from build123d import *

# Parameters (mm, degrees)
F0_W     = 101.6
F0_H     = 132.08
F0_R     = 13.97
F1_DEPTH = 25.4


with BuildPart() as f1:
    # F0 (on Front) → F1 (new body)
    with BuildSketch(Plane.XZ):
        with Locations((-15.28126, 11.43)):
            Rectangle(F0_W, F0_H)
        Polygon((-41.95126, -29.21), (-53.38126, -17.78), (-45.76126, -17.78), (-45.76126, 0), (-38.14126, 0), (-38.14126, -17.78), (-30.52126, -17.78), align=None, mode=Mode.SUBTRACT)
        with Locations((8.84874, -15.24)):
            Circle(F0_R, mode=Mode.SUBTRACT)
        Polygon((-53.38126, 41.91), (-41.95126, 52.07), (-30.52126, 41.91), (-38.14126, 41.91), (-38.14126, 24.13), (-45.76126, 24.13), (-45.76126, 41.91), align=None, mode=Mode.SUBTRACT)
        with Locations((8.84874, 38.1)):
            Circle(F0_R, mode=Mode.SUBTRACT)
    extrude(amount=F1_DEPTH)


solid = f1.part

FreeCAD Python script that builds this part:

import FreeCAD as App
import Part
import Sketcher

V = App.Vector
Q = App.Units.Quantity


def add_polygon(sketch, points):
    """Adds a closed chain of lines whose ends are joined by coincident constraints."""
    first, n = sketch.GeometryCount, len(points)
    for a, b in zip(points, points[1:] + points[:1]):
        sketch.addGeometry(Part.LineSegment(App.Vector(*a, 0), App.Vector(*b, 0)), False)
    for i in range(n):
        sketch.addConstraint(Sketcher.Constraint("Coincident", first + i, 2, first + (i + 1) % n, 1))

doc = App.newDocument("Part")
body = doc.addObject("PartDesign::Body", "Body")

# Sketch on XZ plane
sketch1 = doc.addObject("Sketcher::SketchObject", "Sketch")
body.addObject(sketch1)
sketch1.AttachmentSupport = (doc.XZ_Plane, [""])
sketch1.MapMode = "FlatFace"
add_polygon(sketch1, [(-66, 77), (-66, -55), (36, -55), (36, 77)])  # lines 0-3
add_polygon(sketch1, [(-31, -18), (-42, -29), (-53, -18), (-46, -18), (-46, 0), (-38, 0), (-38, -18)])  # lines 4-10
sketch1.addGeometry(Part.Circle(V(9, -15, 0), V(0, 0, 1), 14), False)  # 11
add_polygon(sketch1, [(-46, 42), (-53, 42), (-42, 52), (-31, 42), (-38, 42), (-38, 24), (-46, 24)])  # lines 12-18
sketch1.addGeometry(Part.Circle(V(9, 38, 0), V(0, 0, 1), 14), False)  # 19
sketch1.addConstraint(Sketcher.Constraint("Vertical", 0))
sketch1.addConstraint(Sketcher.Constraint("Horizontal", 1))
sketch1.addConstraint(Sketcher.Constraint("Vertical", 2))
sketch1.addConstraint(Sketcher.Constraint("Horizontal", 3))
sketch1.addConstraint(Sketcher.Constraint("Horizontal", 6))
sketch1.addConstraint(Sketcher.Constraint("Vertical", 7))
sketch1.addConstraint(Sketcher.Constraint("Horizontal", 8))
sketch1.addConstraint(Sketcher.Constraint("Vertical", 9))
sketch1.addConstraint(Sketcher.Constraint("Horizontal", 10))
sketch1.addConstraint(Sketcher.Constraint("Horizontal", 12))
sketch1.addConstraint(Sketcher.Constraint("Horizontal", 15))
sketch1.addConstraint(Sketcher.Constraint("Vertical", 16))
sketch1.addConstraint(Sketcher.Constraint("Horizontal", 17))
sketch1.addConstraint(Sketcher.Constraint("Vertical", 18))
sketch1.addConstraint(Sketcher.Constraint("Equal", 11, 19))
sketch1.addConstraint(Sketcher.Constraint("PointOnObject", 7, 2, -1))
sketch1.addConstraint(Sketcher.Constraint("Perpendicular", 4, 5))
sketch1.addConstraint(Sketcher.Constraint("Horizontal", 6, 2, 9, 2))
sketch1.addConstraint(Sketcher.Constraint("Horizontal", 12, 2, 14, 2))
sketch1.addConstraint(Sketcher.Constraint("Vertical", 11, 3, 19, 3))
sketch1.addConstraint(Sketcher.Constraint("Vertical", 5, 2, 12, 2))
sketch1.addConstraint(Sketcher.Constraint("Vertical", 4, 2, 13, 2))
sketch1.addConstraint(Sketcher.Constraint("Vertical", 10, 2, 14, 2))
sketch1.addConstraint(Sketcher.Constraint("Vertical", 9, 2, 15, 2))
sketch1.addConstraint(Sketcher.Constraint("Vertical", 7, 2, 17, 2))
sketch1.addConstraint(Sketcher.Constraint("Equal", 6, 8))
sketch1.addConstraint(Sketcher.Constraint("Equal", 8, 10))
sketch1.addConstraint(Sketcher.Constraint("Equal", 9, 16))
sketch1.addConstraint(Sketcher.Constraint("Equal", 4, 5))
sketch1.addConstraint(Sketcher.Constraint("Diameter", 11, Q("1.1 in")))
sketch1.addConstraint(Sketcher.Constraint("DistanceX", 1, 1, 1, 2, Q("4 in")))
sketch1.addConstraint(Sketcher.Constraint("DistanceX", 6, 1, 6, 2, Q("0.3 in")))
sketch1.addConstraint(Sketcher.Constraint("DistanceY", 0, 2, 0, 1, Q("5.2 in")))
sketch1.addConstraint(Sketcher.Constraint("DistanceY", 7, 1, 7, 2, Q("0.7 in")))
sketch1.addConstraint(Sketcher.Constraint("DistanceY", 0, 2, 4, 2, Q("1 in")))
sketch1.addConstraint(Sketcher.Constraint("DistanceX", 4, 2, 11, 3, Q("2 in")))
sketch1.addConstraint(Sketcher.Constraint("DistanceY", 13, 2, 3, 2, Q("1 in")))
sketch1.addConstraint(Sketcher.Constraint("DistanceY", 11, 3, -1, 1, Q("0.6 in")))
sketch1.addConstraint(Sketcher.Constraint("DistanceY", -1, 1, 19, 3, Q("1.5 in")))
sketch1.addConstraint(Sketcher.Constraint("DistanceX", 0, 2, 5, 2, Q("0.5 in")))
sketch1.addConstraint(Sketcher.Constraint("DistanceY", 12, 2, 3, 2, Q("1.4 in")))
sketch1.addConstraint(Sketcher.Constraint("DistanceX", -1, 1, 11, 3, 8.84874))
pad1 = doc.addObject("PartDesign::Pad", "Pad")
body.addObject(pad1)
pad1.Profile = sketch1
pad1.Length = Q("1 in")

doc.recompute()
